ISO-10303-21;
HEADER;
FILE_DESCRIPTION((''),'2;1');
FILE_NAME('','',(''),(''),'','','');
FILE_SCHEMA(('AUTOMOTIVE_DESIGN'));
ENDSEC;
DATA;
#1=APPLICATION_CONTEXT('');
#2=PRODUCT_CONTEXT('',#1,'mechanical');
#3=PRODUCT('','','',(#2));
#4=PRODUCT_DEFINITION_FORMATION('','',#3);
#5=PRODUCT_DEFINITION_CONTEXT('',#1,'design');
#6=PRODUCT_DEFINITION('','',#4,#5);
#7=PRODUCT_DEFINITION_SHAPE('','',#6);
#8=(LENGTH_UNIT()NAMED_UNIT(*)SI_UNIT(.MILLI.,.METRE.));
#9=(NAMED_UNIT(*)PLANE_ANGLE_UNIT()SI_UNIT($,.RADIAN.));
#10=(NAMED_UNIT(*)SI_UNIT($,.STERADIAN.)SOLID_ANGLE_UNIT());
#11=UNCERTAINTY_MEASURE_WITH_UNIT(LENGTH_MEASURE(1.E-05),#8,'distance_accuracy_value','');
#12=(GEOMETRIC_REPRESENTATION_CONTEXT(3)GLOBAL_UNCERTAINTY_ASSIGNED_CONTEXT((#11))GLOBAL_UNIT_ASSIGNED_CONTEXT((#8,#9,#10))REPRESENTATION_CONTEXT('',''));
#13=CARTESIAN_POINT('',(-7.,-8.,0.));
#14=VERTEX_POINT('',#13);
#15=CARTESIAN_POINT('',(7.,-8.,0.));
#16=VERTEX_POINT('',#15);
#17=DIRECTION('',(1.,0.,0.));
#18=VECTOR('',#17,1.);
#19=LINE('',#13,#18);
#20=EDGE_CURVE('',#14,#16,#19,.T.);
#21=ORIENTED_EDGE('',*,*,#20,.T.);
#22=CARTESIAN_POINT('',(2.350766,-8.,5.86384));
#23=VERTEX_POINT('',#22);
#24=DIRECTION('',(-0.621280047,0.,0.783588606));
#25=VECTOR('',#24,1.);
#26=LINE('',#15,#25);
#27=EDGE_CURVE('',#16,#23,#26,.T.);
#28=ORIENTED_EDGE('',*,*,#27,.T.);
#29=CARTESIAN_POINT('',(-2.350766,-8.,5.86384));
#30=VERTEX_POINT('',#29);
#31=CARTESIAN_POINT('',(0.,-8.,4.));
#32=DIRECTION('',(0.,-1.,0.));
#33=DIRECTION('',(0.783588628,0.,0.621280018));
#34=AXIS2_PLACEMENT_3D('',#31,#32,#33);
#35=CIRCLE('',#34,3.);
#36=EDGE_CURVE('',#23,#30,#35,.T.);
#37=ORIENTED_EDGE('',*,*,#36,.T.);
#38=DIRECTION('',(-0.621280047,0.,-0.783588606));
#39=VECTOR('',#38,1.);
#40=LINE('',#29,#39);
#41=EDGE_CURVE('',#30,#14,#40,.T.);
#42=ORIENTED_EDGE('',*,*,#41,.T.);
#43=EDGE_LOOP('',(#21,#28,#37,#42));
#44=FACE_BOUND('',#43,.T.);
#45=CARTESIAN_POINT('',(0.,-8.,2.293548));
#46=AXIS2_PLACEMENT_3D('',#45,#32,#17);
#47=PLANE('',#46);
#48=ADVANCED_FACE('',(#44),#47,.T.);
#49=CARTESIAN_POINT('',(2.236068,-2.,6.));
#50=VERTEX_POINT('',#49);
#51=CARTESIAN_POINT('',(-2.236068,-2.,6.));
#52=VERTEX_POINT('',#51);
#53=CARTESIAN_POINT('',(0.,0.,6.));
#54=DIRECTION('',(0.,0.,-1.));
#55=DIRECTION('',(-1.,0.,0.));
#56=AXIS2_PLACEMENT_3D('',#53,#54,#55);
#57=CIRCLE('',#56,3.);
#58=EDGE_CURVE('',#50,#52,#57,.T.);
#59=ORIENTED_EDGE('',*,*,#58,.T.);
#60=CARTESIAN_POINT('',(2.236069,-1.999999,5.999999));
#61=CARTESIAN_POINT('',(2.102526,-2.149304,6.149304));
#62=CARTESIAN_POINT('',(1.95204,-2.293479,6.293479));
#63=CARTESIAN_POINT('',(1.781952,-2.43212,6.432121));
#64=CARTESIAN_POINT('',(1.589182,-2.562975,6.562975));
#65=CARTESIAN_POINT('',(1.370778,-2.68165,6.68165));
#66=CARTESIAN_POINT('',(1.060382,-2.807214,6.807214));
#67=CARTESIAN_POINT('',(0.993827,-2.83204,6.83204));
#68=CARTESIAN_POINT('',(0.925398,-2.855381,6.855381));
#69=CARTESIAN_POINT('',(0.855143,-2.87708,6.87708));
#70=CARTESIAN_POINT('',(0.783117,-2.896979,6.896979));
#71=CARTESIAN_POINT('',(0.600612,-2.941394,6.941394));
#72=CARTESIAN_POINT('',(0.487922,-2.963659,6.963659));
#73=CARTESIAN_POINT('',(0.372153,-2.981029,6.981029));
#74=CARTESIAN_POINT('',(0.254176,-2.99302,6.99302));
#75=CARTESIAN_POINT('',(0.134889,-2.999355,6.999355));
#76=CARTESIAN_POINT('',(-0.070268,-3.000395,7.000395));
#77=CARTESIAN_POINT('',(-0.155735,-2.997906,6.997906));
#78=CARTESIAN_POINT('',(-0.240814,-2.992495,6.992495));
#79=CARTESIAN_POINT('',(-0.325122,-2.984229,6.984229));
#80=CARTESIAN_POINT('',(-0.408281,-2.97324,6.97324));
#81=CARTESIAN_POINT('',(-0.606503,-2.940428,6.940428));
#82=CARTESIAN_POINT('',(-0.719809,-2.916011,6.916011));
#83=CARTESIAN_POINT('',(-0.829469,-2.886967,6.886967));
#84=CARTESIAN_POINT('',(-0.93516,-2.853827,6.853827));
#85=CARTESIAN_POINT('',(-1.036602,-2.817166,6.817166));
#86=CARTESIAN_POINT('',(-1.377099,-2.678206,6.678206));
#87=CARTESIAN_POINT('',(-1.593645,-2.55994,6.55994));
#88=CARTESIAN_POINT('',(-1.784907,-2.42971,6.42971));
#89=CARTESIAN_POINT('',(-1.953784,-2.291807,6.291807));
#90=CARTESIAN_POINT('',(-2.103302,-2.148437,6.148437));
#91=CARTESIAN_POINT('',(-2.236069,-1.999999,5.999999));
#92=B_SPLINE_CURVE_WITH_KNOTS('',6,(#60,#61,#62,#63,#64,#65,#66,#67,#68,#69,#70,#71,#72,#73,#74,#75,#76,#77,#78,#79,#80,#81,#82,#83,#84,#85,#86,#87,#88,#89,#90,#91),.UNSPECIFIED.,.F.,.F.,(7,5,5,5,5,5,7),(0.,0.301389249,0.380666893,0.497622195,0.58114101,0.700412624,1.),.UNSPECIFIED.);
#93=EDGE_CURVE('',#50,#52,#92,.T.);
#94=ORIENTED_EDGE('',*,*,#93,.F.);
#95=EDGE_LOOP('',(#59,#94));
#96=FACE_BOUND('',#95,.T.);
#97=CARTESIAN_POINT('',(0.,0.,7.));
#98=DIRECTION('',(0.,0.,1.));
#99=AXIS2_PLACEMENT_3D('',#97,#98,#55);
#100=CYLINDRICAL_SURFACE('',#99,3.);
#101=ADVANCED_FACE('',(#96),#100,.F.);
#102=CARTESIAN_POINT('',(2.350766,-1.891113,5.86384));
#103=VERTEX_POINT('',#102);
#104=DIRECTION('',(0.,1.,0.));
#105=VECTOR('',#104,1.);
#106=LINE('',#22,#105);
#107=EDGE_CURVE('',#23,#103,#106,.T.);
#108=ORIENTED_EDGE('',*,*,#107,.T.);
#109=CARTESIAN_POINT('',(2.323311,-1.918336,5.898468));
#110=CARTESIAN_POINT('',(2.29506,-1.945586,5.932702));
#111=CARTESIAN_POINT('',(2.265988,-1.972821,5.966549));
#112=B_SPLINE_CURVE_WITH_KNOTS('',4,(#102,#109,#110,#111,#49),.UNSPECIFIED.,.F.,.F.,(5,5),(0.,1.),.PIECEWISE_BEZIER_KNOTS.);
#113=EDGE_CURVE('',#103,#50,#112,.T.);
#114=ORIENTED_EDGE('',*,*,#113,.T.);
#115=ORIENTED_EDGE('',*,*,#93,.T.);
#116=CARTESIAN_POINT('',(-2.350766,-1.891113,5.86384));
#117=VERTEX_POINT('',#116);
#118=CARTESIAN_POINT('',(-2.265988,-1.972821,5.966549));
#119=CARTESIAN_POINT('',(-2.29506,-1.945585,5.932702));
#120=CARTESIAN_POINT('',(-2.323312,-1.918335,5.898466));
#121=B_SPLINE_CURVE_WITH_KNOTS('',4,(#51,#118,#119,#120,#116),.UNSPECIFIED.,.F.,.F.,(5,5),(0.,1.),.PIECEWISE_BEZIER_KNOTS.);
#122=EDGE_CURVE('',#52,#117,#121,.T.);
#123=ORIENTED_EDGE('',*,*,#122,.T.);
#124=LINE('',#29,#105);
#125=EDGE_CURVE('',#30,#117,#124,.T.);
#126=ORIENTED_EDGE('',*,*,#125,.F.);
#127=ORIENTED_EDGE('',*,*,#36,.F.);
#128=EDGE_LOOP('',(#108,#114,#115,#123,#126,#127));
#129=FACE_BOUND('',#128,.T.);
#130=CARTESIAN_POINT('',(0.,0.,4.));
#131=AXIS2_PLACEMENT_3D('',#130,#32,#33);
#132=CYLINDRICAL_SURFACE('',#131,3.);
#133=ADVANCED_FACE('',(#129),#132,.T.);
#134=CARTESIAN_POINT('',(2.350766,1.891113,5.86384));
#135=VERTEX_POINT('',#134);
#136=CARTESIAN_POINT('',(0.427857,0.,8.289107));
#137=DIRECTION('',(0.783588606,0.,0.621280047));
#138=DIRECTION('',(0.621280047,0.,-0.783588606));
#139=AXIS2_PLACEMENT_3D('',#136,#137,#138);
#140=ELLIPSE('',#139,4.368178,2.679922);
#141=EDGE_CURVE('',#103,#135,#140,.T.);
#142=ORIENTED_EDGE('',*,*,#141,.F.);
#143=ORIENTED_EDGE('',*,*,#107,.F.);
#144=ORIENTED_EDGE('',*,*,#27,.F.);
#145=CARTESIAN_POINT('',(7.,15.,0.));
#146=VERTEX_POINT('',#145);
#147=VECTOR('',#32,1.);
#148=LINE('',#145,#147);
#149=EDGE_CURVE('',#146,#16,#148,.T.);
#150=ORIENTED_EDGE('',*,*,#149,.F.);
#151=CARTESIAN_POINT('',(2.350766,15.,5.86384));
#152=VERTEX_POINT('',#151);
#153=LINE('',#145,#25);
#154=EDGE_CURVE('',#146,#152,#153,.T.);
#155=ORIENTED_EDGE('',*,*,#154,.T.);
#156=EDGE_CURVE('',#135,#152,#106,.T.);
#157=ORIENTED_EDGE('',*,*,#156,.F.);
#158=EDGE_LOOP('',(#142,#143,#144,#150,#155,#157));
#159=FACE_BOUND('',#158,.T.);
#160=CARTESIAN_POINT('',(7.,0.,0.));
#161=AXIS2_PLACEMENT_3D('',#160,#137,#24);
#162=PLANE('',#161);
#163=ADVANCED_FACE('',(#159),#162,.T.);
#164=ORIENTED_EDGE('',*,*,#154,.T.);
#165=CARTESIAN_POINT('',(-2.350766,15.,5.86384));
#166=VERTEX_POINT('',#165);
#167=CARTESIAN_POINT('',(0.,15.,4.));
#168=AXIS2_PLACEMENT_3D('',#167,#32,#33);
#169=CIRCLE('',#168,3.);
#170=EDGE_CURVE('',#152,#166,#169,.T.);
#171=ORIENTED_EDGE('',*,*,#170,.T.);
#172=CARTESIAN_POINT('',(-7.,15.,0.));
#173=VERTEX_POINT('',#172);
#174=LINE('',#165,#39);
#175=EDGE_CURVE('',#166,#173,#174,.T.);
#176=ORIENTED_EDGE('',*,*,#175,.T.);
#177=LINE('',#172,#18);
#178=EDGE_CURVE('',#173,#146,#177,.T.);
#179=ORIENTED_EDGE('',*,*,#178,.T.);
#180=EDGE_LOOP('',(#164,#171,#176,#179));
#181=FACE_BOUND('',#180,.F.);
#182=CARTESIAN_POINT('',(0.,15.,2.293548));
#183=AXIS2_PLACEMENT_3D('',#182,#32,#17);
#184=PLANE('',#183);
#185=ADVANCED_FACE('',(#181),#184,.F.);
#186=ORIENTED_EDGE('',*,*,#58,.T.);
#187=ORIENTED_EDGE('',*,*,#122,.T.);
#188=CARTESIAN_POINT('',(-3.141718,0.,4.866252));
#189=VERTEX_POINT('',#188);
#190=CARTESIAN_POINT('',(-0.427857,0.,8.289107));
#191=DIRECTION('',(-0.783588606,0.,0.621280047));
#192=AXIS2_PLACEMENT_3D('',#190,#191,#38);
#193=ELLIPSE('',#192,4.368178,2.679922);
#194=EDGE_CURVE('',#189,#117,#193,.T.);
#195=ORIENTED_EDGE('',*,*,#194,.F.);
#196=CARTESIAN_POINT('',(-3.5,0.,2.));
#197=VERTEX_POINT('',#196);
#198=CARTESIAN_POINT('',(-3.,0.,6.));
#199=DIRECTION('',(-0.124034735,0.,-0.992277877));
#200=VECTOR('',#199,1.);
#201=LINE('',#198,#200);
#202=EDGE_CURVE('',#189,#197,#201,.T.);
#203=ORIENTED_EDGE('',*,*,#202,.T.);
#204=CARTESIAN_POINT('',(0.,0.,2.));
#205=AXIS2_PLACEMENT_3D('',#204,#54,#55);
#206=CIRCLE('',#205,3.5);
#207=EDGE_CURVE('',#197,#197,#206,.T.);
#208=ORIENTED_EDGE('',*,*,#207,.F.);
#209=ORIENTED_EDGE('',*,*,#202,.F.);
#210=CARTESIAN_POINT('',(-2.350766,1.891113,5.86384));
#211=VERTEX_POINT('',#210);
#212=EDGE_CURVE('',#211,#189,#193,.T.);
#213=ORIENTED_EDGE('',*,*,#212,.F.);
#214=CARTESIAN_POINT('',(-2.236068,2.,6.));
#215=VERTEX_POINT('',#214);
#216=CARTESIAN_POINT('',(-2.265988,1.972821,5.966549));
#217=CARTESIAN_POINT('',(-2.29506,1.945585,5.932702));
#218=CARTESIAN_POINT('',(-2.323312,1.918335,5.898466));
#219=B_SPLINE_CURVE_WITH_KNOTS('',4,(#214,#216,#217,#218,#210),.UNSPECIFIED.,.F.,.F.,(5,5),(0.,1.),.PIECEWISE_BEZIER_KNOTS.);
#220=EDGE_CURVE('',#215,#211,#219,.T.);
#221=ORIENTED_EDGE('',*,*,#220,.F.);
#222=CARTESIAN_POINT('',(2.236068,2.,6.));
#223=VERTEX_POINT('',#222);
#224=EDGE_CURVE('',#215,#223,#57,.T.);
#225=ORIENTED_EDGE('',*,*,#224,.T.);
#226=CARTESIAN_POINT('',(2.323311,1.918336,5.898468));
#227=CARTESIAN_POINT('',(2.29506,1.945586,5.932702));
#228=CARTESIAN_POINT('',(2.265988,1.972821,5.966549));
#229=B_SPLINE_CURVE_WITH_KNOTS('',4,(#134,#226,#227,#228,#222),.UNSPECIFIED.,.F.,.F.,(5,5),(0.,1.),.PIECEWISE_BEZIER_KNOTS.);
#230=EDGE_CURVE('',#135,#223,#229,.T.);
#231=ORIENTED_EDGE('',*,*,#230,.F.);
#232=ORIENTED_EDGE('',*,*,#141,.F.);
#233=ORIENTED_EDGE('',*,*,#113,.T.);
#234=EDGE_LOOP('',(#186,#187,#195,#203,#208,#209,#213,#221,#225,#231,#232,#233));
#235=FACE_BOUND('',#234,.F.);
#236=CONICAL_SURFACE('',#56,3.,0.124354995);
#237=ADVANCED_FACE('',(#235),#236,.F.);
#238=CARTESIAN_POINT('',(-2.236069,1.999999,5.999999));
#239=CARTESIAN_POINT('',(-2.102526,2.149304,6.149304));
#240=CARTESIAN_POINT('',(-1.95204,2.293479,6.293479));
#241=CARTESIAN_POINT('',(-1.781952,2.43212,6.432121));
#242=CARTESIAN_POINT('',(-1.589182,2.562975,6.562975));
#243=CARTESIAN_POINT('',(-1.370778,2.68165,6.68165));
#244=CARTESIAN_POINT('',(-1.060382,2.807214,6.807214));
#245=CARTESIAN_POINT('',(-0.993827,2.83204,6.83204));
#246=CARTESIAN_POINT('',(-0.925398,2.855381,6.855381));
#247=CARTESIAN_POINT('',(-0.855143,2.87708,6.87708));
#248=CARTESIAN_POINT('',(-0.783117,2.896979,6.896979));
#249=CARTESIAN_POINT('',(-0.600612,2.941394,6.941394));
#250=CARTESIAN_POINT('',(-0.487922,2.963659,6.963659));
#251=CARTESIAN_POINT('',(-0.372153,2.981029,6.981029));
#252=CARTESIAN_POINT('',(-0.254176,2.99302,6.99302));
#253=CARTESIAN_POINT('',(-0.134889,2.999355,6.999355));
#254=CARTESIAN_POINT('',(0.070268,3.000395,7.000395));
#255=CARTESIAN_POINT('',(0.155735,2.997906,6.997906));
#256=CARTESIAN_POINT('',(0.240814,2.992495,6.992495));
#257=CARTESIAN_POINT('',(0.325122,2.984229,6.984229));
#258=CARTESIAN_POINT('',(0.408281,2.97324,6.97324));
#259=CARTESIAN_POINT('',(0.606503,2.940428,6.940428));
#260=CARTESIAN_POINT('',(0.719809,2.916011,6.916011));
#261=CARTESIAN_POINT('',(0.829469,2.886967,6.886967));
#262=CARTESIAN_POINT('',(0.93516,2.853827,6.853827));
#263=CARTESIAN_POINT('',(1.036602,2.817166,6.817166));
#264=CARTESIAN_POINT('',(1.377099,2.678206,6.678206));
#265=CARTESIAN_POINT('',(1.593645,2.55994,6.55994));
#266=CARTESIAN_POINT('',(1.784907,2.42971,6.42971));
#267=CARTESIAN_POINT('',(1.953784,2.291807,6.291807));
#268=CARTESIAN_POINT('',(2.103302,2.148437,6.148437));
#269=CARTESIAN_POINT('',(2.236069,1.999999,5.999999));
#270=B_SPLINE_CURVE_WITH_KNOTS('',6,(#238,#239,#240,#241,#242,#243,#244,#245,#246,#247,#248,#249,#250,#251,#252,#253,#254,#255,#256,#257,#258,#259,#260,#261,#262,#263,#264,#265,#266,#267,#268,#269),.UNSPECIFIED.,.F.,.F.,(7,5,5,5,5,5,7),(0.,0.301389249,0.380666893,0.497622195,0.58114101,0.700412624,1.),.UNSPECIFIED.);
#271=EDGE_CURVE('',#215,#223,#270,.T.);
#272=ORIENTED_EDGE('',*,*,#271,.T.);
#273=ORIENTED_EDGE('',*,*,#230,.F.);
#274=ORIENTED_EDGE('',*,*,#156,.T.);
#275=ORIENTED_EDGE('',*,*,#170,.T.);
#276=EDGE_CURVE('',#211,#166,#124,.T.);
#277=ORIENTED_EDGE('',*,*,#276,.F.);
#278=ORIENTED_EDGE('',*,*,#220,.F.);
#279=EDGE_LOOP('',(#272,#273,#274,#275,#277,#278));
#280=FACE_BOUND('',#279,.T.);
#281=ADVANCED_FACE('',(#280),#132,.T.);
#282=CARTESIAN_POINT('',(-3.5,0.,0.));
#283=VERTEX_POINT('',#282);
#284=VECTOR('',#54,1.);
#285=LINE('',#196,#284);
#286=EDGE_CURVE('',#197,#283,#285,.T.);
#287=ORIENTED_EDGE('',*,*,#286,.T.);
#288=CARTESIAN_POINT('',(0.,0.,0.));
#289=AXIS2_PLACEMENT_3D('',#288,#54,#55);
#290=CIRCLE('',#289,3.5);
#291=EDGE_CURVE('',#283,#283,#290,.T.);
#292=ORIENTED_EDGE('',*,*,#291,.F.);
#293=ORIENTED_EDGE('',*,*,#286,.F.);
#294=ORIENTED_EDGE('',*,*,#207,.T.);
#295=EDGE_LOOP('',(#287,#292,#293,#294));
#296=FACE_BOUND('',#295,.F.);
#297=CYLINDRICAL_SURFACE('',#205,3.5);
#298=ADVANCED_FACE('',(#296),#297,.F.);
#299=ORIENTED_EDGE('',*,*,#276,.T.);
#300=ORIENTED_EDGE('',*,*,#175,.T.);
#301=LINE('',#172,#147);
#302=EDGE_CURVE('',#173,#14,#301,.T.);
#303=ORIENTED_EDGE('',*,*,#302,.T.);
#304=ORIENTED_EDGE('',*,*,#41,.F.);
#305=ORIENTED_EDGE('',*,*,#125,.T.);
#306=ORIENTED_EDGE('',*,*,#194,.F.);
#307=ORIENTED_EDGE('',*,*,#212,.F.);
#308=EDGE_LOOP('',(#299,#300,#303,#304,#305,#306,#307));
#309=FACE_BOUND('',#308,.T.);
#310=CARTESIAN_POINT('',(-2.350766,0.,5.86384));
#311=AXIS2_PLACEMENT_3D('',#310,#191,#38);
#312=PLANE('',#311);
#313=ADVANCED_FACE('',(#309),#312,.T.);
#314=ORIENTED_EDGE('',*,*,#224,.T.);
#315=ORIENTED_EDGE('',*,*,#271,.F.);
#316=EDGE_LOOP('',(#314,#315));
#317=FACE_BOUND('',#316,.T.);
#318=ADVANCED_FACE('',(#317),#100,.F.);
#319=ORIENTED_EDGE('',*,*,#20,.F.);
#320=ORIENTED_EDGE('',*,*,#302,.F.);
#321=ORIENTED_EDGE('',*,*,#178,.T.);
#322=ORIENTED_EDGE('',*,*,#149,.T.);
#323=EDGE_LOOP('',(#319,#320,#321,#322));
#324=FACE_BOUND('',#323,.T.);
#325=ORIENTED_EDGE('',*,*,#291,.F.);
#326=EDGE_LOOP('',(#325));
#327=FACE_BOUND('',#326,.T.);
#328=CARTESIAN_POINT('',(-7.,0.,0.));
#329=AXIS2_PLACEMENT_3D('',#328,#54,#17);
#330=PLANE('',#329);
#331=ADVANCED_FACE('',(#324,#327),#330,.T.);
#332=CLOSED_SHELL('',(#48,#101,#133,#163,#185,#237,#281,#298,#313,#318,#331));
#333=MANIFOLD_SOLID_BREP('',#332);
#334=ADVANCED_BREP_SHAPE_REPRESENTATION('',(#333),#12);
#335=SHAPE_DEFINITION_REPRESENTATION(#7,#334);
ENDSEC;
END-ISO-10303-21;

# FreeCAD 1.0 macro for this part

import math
import FreeCAD as App
import Part
import Sketcher
from FreeCAD import Vector


def add_polygon(sketch, points):
    """Adds a closed chain of lines whose ends are joined by coincident constraints."""
    first, n = sketch.GeometryCount, len(points)
    for a, b in zip(points, points[1:] + points[:1]):
        sketch.addGeometry(Part.LineSegment(App.Vector(*a, 0), App.Vector(*b, 0)), False)
    for i in range(n):
        sketch.addConstraint(Sketcher.Constraint("Coincident", first + i, 2, first + (i + 1) % n, 1))

doc = App.newDocument("Part")
params = doc.addObject("Spreadsheet::Sheet", "Params")
for row, (alias, value) in enumerate([
    ("sketch1_radius", "3 mm"),
    ("sketch1_width", "14 mm"),
    ("pad1_length", "8 mm"),
    ("pad1_length2", "15 mm"),
    ("sketch2_width", "3 mm"),
    ("sketch2_height", "2 mm"),
    ("sketch2_height2", "8 mm"),
    ("sketch2_width2", "3.5 mm"),
    ("groove_angle", "360 deg"),
], start=1):
    params.set(f"A{row}", alias)
    params.set(f"B{row}", "=" + value)
    params.setAlias(f"B{row}", alias)

body = doc.addObject("PartDesign::Body", "Body")

sketch1 = doc.addObject("Sketcher::SketchObject", "Sketch")
body.addObject(sketch1)
sketch1.AttachmentSupport = (doc.XZ_Plane, [""])
sketch1.MapMode = "FlatFace"
sketch1.addGeometry(Part.LineSegment(Vector(-2.4, 5.9, 0), Vector(-7, 0, 0)), False)
sketch1.addGeometry(Part.LineSegment(Vector(-7, 0, 0), Vector(7, 0, 0)), False)
sketch1.addGeometry(Part.LineSegment(Vector(7, 0, 0), Vector(2.4, 5.9, 0)), False)
sketch1.addGeometry(Part.ArcOfCircle(Part.Circle(Vector(0, 4, 0), Vector(0, 0, 1), 3), math.radians(38), math.radians(142)), False)
sketch1.addConstraint(Sketcher.Constraint("Coincident", 0, 2, 1, 1))
sketch1.addConstraint(Sketcher.Constraint("Coincident", 1, 2, 2, 1))
sketch1.addConstraint(Sketcher.Constraint("Tangent", 2, 2, 3, 1))
sketch1.addConstraint(Sketcher.Constraint("Tangent", 3, 2, 0, 1))
sketch1.addConstraint(Sketcher.Constraint("Horizontal", 1))
sketch1.addConstraint(Sketcher.Constraint("Symmetric", 0, 2, 1, 2, -1, 1))
sketch1.addConstraint(Sketcher.Constraint("PointOnObject", 3, 3, -2))
sketch1.addConstraint(Sketcher.Constraint("Radius", 3, 3.0))
sketch1.addConstraint(Sketcher.Constraint("DistanceX", 1, 1, 1, 2, 14.0))
sketch1.addConstraint(Sketcher.Constraint("DistanceY", -1, 1, 3, 3, 4.0))
sketch1.setExpression("Constraints[7]", "Params.sketch1_radius")
sketch1.setExpression("Constraints[8]", "Params.sketch1_width")
pad1 = doc.addObject("PartDesign::Pad", "Pad")
body.addObject(pad1)
pad1.Profile = sketch1
pad1.Type = "TwoLengths"
pad1.setExpression("Length", "Params.pad1_length")
pad1.setExpression("Length2", "Params.pad1_length2")

sketch2 = doc.addObject("Sketcher::SketchObject", "Sketch001")
body.addObject(sketch2)
sketch2.AttachmentSupport = (doc.XZ_Plane, [""])
sketch2.MapMode = "FlatFace"
add_polygon(sketch2, [(-3, 6), (-3.5, 2), (-3.5, 0), (0, 0), (0, 8), (-3, 8)])
sketch2.addConstraint(Sketcher.Constraint("Vertical", 1))
sketch2.addConstraint(Sketcher.Constraint("Horizontal", 2))
sketch2.addConstraint(Sketcher.Constraint("Vertical", 3))
sketch2.addConstraint(Sketcher.Constraint("Horizontal", 4))
sketch2.addConstraint(Sketcher.Constraint("Vertical", 5))
sketch2.addConstraint(Sketcher.Constraint("Coincident", 2, 2, -1, 1))
sketch2.addConstraint(Sketcher.Constraint("Equal", 1, 5))
sketch2.addConstraint(Sketcher.Constraint("DistanceX", 4, 2, 4, 1, 3.0))
sketch2.addConstraint(Sketcher.Constraint("DistanceY", 1, 2, 1, 1, 2.0))
sketch2.addConstraint(Sketcher.Constraint("DistanceY", 3, 1, 3, 2, 8.0))
sketch2.addConstraint(Sketcher.Constraint("DistanceX", 2, 1, 2, 2, 3.5))
sketch2.setExpression("Constraints[13]", "Params.sketch2_width")
sketch2.setExpression("Constraints[14]", "Params.sketch2_height")
sketch2.setExpression("Constraints[15]", "Params.sketch2_height2")
sketch2.setExpression("Constraints[16]", "Params.sketch2_width2")
groove = doc.addObject("PartDesign::Groove", "Groove")
body.addObject(groove)
groove.Profile = sketch2
groove.ReferenceAxis = (sketch2, ["V_Axis"])
groove.setExpression("Angle", "Params.groove_angle")

doc.recompute()
